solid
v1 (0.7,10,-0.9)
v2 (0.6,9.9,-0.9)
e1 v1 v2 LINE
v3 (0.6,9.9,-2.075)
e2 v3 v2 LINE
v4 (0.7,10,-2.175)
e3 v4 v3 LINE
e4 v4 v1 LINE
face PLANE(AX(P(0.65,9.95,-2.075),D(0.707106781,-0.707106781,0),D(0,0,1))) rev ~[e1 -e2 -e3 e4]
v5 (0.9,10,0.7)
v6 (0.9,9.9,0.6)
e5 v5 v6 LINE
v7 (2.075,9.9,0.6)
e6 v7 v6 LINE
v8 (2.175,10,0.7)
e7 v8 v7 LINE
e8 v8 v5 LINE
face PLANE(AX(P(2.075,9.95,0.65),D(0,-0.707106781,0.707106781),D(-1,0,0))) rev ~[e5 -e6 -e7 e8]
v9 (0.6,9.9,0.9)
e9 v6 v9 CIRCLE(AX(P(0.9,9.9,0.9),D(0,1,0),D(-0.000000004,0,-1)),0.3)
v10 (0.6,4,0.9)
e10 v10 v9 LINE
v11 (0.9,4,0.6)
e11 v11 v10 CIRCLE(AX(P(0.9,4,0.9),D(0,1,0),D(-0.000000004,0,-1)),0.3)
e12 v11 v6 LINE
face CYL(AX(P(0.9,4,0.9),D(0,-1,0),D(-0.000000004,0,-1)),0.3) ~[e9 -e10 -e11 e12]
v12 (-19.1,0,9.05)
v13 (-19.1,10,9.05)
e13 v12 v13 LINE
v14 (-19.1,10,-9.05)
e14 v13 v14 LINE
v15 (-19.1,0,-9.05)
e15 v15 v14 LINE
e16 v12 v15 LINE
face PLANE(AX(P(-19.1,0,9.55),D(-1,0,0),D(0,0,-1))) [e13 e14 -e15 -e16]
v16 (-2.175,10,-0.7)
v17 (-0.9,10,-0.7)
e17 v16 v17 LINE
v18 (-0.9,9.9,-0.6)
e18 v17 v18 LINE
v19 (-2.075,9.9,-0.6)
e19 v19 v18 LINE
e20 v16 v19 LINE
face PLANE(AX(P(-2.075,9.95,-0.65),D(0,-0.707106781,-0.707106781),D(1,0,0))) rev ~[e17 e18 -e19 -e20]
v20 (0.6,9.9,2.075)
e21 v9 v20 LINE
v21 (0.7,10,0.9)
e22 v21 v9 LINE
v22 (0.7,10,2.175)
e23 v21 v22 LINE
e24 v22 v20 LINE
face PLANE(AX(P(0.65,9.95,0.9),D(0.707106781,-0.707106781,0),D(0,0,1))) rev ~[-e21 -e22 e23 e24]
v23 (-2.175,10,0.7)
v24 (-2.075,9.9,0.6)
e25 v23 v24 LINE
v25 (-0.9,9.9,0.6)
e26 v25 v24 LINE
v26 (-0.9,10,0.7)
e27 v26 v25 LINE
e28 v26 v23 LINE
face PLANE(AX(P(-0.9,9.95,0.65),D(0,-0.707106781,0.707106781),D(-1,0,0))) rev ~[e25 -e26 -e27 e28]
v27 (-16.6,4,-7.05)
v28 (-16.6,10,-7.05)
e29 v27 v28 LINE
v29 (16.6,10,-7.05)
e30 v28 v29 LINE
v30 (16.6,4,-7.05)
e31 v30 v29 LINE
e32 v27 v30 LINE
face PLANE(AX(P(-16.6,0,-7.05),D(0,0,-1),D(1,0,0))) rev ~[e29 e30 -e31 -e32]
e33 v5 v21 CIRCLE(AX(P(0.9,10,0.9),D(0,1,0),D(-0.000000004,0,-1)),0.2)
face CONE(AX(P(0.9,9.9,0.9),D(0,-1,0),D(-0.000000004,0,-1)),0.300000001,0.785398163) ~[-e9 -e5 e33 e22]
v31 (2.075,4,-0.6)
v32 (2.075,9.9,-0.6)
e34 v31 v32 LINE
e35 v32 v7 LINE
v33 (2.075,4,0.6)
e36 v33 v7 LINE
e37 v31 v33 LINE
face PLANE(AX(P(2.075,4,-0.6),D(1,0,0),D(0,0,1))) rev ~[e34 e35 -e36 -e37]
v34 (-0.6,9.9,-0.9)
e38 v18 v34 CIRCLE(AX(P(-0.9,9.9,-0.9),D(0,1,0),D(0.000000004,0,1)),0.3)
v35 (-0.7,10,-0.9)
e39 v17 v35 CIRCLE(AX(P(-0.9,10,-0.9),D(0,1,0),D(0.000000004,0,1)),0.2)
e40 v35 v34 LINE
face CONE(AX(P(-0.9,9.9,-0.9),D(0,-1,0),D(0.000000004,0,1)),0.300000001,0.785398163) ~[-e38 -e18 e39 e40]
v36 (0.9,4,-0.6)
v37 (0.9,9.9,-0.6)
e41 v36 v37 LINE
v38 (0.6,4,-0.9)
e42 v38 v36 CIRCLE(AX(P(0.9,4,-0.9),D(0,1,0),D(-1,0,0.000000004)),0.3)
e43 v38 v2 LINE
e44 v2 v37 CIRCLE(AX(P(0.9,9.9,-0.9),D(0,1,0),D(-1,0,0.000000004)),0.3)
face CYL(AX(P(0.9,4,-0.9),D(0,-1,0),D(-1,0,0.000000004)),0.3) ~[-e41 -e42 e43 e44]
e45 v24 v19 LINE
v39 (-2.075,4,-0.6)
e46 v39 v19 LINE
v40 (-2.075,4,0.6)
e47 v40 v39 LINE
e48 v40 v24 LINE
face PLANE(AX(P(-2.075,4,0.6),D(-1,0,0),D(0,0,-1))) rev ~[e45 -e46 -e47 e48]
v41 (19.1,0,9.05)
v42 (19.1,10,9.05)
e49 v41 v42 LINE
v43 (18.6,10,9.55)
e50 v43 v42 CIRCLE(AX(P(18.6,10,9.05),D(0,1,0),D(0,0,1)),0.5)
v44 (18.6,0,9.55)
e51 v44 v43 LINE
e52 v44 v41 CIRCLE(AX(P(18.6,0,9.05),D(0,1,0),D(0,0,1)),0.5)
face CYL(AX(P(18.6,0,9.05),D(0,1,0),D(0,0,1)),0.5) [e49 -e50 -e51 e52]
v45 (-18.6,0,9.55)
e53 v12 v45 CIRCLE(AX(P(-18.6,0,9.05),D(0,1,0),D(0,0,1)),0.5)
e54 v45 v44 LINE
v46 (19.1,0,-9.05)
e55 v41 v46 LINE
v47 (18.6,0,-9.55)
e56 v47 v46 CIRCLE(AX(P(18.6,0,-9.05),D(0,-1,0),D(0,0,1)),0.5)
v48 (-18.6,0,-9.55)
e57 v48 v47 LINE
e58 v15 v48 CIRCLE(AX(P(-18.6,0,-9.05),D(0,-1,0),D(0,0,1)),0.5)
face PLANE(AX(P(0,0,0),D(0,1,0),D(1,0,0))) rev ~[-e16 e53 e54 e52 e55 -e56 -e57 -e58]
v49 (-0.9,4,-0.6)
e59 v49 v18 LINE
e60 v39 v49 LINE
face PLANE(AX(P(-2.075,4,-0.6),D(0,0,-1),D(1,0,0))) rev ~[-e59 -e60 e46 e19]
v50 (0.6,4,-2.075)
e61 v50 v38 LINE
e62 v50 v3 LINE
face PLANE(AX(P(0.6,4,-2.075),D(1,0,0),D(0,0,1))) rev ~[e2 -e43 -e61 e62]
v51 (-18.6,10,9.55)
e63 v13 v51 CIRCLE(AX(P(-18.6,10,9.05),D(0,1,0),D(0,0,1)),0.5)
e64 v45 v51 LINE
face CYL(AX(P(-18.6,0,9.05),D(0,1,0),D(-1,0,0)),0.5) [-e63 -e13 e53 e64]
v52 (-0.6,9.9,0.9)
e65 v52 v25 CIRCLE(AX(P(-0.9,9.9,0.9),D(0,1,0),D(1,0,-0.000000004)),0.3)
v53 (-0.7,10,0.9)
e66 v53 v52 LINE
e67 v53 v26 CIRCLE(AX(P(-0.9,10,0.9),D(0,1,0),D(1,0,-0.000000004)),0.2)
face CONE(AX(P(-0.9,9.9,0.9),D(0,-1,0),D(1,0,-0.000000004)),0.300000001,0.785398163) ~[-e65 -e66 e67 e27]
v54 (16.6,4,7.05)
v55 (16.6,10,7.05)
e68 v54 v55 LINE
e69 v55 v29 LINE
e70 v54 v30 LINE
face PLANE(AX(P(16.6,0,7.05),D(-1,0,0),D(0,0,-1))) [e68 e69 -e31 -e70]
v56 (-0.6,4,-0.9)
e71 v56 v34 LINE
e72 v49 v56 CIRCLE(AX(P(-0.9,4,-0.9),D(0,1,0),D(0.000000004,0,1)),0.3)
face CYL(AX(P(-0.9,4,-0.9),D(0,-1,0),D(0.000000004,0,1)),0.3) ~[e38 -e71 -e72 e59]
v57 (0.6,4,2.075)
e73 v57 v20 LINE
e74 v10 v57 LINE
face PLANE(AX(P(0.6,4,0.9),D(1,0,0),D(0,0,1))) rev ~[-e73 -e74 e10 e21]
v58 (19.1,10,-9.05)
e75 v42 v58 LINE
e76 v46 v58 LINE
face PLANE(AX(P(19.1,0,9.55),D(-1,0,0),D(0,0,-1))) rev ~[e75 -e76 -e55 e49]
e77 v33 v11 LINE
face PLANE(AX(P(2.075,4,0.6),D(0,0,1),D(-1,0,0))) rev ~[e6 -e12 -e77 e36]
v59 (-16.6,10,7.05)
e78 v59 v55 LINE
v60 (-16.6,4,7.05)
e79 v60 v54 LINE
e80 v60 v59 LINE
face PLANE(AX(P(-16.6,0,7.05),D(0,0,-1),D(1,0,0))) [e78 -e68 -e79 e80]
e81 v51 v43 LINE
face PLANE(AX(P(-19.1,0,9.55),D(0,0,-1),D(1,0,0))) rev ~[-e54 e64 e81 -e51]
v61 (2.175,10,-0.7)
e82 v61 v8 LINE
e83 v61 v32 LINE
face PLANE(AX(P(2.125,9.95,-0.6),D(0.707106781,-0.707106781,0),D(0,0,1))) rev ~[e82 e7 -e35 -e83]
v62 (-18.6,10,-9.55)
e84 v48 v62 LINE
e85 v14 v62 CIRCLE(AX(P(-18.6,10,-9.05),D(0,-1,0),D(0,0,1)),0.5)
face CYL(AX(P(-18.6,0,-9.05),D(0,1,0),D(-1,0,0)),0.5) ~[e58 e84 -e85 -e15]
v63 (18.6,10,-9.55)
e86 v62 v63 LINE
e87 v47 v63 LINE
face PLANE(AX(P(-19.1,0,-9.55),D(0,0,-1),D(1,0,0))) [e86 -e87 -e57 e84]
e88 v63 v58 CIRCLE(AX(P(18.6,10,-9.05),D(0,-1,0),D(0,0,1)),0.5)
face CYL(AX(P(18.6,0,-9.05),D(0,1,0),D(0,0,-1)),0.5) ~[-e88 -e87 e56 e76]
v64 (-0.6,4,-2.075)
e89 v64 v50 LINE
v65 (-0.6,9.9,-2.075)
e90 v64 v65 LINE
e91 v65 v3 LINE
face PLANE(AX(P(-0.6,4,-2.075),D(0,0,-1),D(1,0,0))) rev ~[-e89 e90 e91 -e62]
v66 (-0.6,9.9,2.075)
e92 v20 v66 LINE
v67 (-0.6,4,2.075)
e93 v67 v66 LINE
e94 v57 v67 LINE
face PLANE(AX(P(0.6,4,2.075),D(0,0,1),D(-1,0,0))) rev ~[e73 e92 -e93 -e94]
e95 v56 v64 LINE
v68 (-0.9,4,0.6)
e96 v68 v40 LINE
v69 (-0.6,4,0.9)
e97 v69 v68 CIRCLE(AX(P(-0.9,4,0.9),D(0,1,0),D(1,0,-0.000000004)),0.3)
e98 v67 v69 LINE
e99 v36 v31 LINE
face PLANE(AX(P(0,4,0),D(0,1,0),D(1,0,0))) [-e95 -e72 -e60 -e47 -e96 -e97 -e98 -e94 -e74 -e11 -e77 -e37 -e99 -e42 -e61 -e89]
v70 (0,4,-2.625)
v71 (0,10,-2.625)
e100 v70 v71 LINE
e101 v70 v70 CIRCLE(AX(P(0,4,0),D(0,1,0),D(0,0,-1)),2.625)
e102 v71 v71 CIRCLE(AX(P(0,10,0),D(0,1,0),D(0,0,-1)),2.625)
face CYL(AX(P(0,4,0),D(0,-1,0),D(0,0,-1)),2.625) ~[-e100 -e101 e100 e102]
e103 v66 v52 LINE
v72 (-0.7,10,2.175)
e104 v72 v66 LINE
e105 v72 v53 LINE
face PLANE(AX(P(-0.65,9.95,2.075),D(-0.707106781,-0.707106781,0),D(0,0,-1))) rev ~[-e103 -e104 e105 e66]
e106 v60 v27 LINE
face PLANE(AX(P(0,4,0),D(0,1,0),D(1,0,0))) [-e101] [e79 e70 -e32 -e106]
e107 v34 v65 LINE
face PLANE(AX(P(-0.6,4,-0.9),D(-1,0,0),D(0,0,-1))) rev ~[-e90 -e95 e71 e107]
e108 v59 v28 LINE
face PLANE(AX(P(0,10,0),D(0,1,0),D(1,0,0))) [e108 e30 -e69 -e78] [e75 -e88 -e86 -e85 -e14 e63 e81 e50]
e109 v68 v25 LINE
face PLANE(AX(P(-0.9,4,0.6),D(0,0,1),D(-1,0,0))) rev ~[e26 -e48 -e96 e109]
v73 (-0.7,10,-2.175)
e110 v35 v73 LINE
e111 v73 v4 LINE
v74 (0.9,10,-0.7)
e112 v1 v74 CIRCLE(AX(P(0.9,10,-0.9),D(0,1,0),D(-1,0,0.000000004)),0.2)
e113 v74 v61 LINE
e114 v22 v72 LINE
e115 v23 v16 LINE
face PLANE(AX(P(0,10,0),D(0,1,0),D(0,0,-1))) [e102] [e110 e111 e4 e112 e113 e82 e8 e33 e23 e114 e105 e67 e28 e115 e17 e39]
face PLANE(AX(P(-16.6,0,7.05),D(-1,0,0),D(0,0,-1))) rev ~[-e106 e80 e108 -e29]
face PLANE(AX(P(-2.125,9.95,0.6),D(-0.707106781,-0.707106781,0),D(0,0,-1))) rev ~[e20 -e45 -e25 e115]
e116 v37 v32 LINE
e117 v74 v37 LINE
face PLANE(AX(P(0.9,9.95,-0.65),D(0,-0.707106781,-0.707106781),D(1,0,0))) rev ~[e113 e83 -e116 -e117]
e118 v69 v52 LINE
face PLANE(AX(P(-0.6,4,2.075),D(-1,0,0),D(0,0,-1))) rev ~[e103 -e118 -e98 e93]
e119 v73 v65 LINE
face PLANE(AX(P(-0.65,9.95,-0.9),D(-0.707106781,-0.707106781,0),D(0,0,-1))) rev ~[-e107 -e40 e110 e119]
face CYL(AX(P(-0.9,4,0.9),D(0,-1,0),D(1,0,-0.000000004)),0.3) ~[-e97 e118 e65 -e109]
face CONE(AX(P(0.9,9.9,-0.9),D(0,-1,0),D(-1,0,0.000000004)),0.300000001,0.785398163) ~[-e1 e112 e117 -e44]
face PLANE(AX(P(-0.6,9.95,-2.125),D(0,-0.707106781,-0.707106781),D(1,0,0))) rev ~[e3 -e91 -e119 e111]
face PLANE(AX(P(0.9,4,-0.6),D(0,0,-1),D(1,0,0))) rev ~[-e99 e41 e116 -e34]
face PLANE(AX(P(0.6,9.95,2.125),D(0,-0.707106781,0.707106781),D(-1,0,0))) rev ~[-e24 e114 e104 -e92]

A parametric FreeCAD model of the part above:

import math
import FreeCAD as App
import Part
import Sketcher


def edges_at(feature, points):
    """Names of the edges that pass closest to the given points."""
    edges = feature.Shape.Edges
    near = lambda p: min(range(len(edges)), key=lambda i: edges[i].distToShape(Part.Vertex(*p))[0])
    return sorted({f"Edge{near(p) + 1}" for p in points})

doc = App.newDocument("Part")
body = doc.addObject("PartDesign::Body", "Body")

# Sketch on XZ plane
sketch1 = body.newObject("Sketcher::SketchObject", "Sketch")
sketch1.AttachmentSupport = (doc.getObject("XZ_Plane"), [""])
sketch1.MapMode = "FlatFace"
sketch1.addGeometry([
    Part.LineSegment(App.Vector(-19.1, -9.55, 0), App.Vector(-19.1, 9.55, 0)),  # 0
    Part.LineSegment(App.Vector(-19.1, 9.55, 0), App.Vector(19.1, 9.55, 0)),  # 1
    Part.LineSegment(App.Vector(19.1, 9.55, 0), App.Vector(19.1, -9.55, 0)),  # 2
    Part.LineSegment(App.Vector(19.1, -9.55, 0), App.Vector(-19.1, -9.55, 0)),  # 3
    Part.LineSegment(App.Vector(16.6, 7.05, 0), App.Vector(-16.6, 7.05, 0)),  # 4
    Part.LineSegment(App.Vector(-16.6, 7.05, 0), App.Vector(-16.6, -7.05, 0)),  # 5
    Part.LineSegment(App.Vector(-16.6, -7.05, 0), App.Vector(16.6, -7.05, 0)),  # 6
    Part.LineSegment(App.Vector(16.6, -7.05, 0), App.Vector(16.6, 7.05, 0)),  # 7
], False)
sketch1.addConstraint([
    Sketcher.Constraint("Coincident", 0, 2, 1, 1),
    Sketcher.Constraint("Coincident", 1, 2, 2, 1),
    Sketcher.Constraint("Coincident", 2, 2, 3, 1),
    Sketcher.Constraint("Coincident", 3, 2, 0, 1),
    Sketcher.Constraint("Coincident", 4, 2, 5, 1),
    Sketcher.Constraint("Coincident", 5, 2, 6, 1),
    Sketcher.Constraint("Coincident", 6, 2, 7, 1),
    Sketcher.Constraint("Coincident", 7, 2, 4, 1),
    Sketcher.Constraint("Vertical", 0),
    Sketcher.Constraint("Horizontal", 1),
    Sketcher.Constraint("Vertical", 2),
    Sketcher.Constraint("Horizontal", 3),
    Sketcher.Constraint("Horizontal", 4),
    Sketcher.Constraint("Vertical", 5),
    Sketcher.Constraint("Horizontal", 6),
    Sketcher.Constraint("Vertical", 7),
    Sketcher.Constraint("Symmetric", 0, 2, 2, 2, -1, 1),
    Sketcher.Constraint("Symmetric", 4, 2, 6, 2, -1, 1),
    Sketcher.Constraint("DistanceX", 1, 1, 1, 2, 38.2),
    Sketcher.Constraint("DistanceX", 4, 2, 4, 1, 33.2),
    Sketcher.Constraint("DistanceY", 0, 1, 0, 2, 19.1),
    Sketcher.Constraint("DistanceY", 5, 2, 5, 1, 14.1),
])
pad1 = body.newObject("PartDesign::Pad", "Pad")
pad1.Profile = sketch1
pad1.Length = 10
pad1.Reversed = True

# Sketch on XZ plane
sketch2 = body.newObject("Sketcher::SketchObject", "Sketch001")
sketch2.AttachmentSupport = (doc.getObject("XZ_Plane"), [""])
sketch2.MapMode = "FlatFace"
sketch2.addGeometry([
    Part.LineSegment(App.Vector(-16.6, -7.05, 0), App.Vector(-16.6, 7.05, 0)),
    Part.LineSegment(App.Vector(-16.6, 7.05, 0), App.Vector(16.6, 7.05, 0)),
    Part.LineSegment(App.Vector(16.6, 7.05, 0), App.Vector(16.6, -7.05, 0)),
    Part.LineSegment(App.Vector(16.6, -7.05, 0), App.Vector(-16.6, -7.05, 0)),
], False)
sketch2.addConstraint([
    Sketcher.Constraint("Coincident", 0, 2, 1, 1),
    Sketcher.Constraint("Coincident", 1, 2, 2, 1),
    Sketcher.Constraint("Coincident", 2, 2, 3, 1),
    Sketcher.Constraint("Coincident", 3, 2, 0, 1),
    Sketcher.Constraint("Vertical", 0),
    Sketcher.Constraint("Horizontal", 1),
    Sketcher.Constraint("Vertical", 2),
    Sketcher.Constraint("Horizontal", 3),
    Sketcher.Constraint("Symmetric", 0, 2, 2, 2, -1, 1),
    Sketcher.Constraint("DistanceX", 1, 1, 1, 2, 33.2),
    Sketcher.Constraint("DistanceY", 0, 1, 0, 2, 14.1),
])
pad2 = body.newObject("PartDesign::Pad", "Pad001")
pad2.Profile = sketch2
pad2.Length = 4
pad2.Reversed = True

# Sketch on XZ plane
sketch3 = body.newObject("Sketcher::SketchObject", "Sketch002")
sketch3.AttachmentSupport = (doc.getObject("XZ_Plane"), [""])
sketch3.MapMode = "FlatFace"
sketch3.AttachmentOffset = App.Placement(App.Vector(0, 0, -4), App.Rotation())
sketch3.addGeometry([
    Part.Circle(App.Vector(0, 0, 0), App.Vector(0, 0, 1), 2.625),  # 0
    Part.ArcOfCircle(Part.Circle(App.Vector(-0.9, 0.9, 0), App.Vector(0, 0, 1), 0.3), math.radians(-90), math.radians(0)),  # 1
    Part.LineSegment(App.Vector(-0.9, 0.6, 0), App.Vector(-2.075, 0.6, 0)),  # 2
    Part.LineSegment(App.Vector(-2.075, 0.6, 0), App.Vector(-2.075, -0.6, 0)),  # 3
    Part.LineSegment(App.Vector(-2.075, -0.6, 0), App.Vector(-0.9, -0.6, 0)),  # 4
    Part.ArcOfCircle(Part.Circle(App.Vector(-0.9, -0.9, 0), App.Vector(0, 0, 1), 0.3), math.radians(0), math.radians(90)),  # 5
    Part.LineSegment(App.Vector(-0.6, -0.9, 0), App.Vector(-0.6, -2.075, 0)),  # 6
    Part.LineSegment(App.Vector(-0.6, -2.075, 0), App.Vector(0.6, -2.075, 0)),  # 7
    Part.LineSegment(App.Vector(0.6, -2.075, 0), App.Vector(0.6, -0.9, 0)),  # 8
    Part.ArcOfCircle(Part.Circle(App.Vector(0.9, -0.9, 0), App.Vector(0, 0, 1), 0.3), math.radians(90), math.radians(180)),  # 9
    Part.LineSegment(App.Vector(0.9, -0.6, 0), App.Vector(2.075, -0.6, 0)),  # 10
    Part.LineSegment(App.Vector(2.075, -0.6, 0), App.Vector(2.075, 0.6, 0)),  # 11
    Part.LineSegment(App.Vector(2.075, 0.6, 0), App.Vector(0.9, 0.6, 0)),  # 12
    Part.ArcOfCircle(Part.Circle(App.Vector(0.9, 0.9, 0), App.Vector(0, 0, 1), 0.3), math.radians(-180), math.radians(-90)),  # 13
    Part.LineSegment(App.Vector(0.6, 0.9, 0), App.Vector(0.6, 2.075, 0)),  # 14
    Part.LineSegment(App.Vector(0.6, 2.075, 0), App.Vector(-0.6, 2.075, 0)),  # 15
    Part.LineSegment(App.Vector(-0.6, 2.075, 0), App.Vector(-0.6, 0.9, 0)),  # 16
], False)
sketch3.addConstraint([
    Sketcher.Constraint("Tangent", 1, 1, 2, 1),
    Sketcher.Constraint("Coincident", 2, 2, 3, 1),
    Sketcher.Constraint("Coincident", 3, 2, 4, 1),
    Sketcher.Constraint("Tangent", 4, 2, 5, 2),
    Sketcher.Constraint("Tangent", 5, 1, 6, 1),
    Sketcher.Constraint("Coincident", 6, 2, 7, 1),
    Sketcher.Constraint("Coincident", 7, 2, 8, 1),
    Sketcher.Constraint("Tangent", 8, 2, 9, 2),
    Sketcher.Constraint("Tangent", 9, 1, 10, 1),
    Sketcher.Constraint("Coincident", 10, 2, 11, 1),
    Sketcher.Constraint("Coincident", 11, 2, 12, 1),
    Sketcher.Constraint("Tangent", 12, 2, 13, 2),
    Sketcher.Constraint("Tangent", 13, 1, 14, 1),
    Sketcher.Constraint("Coincident", 14, 2, 15, 1),
    Sketcher.Constraint("Coincident", 15, 2, 16, 1),
    Sketcher.Constraint("Tangent", 16, 2, 1, 2),
    Sketcher.Constraint("Horizontal", 2),
    Sketcher.Constraint("Vertical", 3),
    Sketcher.Constraint("Horizontal", 4),
    Sketcher.Constraint("Vertical", 6),
    Sketcher.Constraint("Horizontal", 7),
    Sketcher.Constraint("Vertical", 8),
    Sketcher.Constraint("Horizontal", 10),
    Sketcher.Constraint("Vertical", 11),
    Sketcher.Constraint("Horizontal", 12),
    Sketcher.Constraint("Vertical", 14),
    Sketcher.Constraint("Horizontal", 15),
    Sketcher.Constraint("Vertical", 16),
    Sketcher.Constraint("Coincident", 0, 3, -1, 1),
    Sketcher.Constraint("Equal", 1, 5),
    Sketcher.Constraint("Equal", 5, 9),
    Sketcher.Constraint("Equal", 9, 13),
    Sketcher.Constraint("Symmetric", 1, 3, 9, 3, -1, 1),
    Sketcher.Constraint("Symmetric", 5, 3, 13, 3, -1, 1),
    Sketcher.Constraint("Symmetric", 5, 3, 9, 3, -2),
    Sketcher.Constraint("Equal", 4, 10),
    Sketcher.Constraint("Equal", 15, 3),
    Sketcher.Constraint("Equal", 12, 6),
    Sketcher.Constraint("Equal", 8, 14),
    Sketcher.Constraint("Radius", 1, 0.3),
    Sketcher.Constraint("Diameter", 0, 5.25),
    Sketcher.Constraint("DistanceX", 7, 1, 7, 2, 1.2),
    Sketcher.Constraint("DistanceX", 2, 2, 2, 1, 1.175),
])
pad3 = body.newObject("PartDesign::Pad", "Pad002")
pad3.Profile = sketch3
pad3.Length = 6
pad3.Reversed = True
doc.recompute()

chamfer = body.newObject("PartDesign::Chamfer", "Chamfer")
chamfer.Base = (pad3, edges_at(pad3, [
    (-0.6, 10, 1.488),
    (-0.688, 10, 0.688),
    (-2.075, 10, 0),
    (-1.488, 10, -0.6),
    (-0.688, 10, -0.688),
    (-0.6, 10, -1.488),
    (0, 10, -2.075),
    (0.688, 10, -0.688),
    (1.488, 10, -0.6),
    (0.688, 10, 0.688),
    (-1.488, 10, 0.6),
    (0.6, 10, -1.488),
    (2.075, 10, 0),
    (1.488, 10, 0.6),
    (0.6, 10, 1.488),
    (0, 10, 2.075),
]))
chamfer.Size = 0.1
doc.recompute()

fillet = body.newObject("PartDesign::Fillet", "Fillet")
fillet.Base = (chamfer, edges_at(chamfer, [
    (19.1, 5, 9.55),
    (-19.1, 5, 9.55),
    (-19.1, 5, -9.55),
    (19.1, 5, -9.55),
]))
fillet.Radius = 0.5

doc.recompute()
